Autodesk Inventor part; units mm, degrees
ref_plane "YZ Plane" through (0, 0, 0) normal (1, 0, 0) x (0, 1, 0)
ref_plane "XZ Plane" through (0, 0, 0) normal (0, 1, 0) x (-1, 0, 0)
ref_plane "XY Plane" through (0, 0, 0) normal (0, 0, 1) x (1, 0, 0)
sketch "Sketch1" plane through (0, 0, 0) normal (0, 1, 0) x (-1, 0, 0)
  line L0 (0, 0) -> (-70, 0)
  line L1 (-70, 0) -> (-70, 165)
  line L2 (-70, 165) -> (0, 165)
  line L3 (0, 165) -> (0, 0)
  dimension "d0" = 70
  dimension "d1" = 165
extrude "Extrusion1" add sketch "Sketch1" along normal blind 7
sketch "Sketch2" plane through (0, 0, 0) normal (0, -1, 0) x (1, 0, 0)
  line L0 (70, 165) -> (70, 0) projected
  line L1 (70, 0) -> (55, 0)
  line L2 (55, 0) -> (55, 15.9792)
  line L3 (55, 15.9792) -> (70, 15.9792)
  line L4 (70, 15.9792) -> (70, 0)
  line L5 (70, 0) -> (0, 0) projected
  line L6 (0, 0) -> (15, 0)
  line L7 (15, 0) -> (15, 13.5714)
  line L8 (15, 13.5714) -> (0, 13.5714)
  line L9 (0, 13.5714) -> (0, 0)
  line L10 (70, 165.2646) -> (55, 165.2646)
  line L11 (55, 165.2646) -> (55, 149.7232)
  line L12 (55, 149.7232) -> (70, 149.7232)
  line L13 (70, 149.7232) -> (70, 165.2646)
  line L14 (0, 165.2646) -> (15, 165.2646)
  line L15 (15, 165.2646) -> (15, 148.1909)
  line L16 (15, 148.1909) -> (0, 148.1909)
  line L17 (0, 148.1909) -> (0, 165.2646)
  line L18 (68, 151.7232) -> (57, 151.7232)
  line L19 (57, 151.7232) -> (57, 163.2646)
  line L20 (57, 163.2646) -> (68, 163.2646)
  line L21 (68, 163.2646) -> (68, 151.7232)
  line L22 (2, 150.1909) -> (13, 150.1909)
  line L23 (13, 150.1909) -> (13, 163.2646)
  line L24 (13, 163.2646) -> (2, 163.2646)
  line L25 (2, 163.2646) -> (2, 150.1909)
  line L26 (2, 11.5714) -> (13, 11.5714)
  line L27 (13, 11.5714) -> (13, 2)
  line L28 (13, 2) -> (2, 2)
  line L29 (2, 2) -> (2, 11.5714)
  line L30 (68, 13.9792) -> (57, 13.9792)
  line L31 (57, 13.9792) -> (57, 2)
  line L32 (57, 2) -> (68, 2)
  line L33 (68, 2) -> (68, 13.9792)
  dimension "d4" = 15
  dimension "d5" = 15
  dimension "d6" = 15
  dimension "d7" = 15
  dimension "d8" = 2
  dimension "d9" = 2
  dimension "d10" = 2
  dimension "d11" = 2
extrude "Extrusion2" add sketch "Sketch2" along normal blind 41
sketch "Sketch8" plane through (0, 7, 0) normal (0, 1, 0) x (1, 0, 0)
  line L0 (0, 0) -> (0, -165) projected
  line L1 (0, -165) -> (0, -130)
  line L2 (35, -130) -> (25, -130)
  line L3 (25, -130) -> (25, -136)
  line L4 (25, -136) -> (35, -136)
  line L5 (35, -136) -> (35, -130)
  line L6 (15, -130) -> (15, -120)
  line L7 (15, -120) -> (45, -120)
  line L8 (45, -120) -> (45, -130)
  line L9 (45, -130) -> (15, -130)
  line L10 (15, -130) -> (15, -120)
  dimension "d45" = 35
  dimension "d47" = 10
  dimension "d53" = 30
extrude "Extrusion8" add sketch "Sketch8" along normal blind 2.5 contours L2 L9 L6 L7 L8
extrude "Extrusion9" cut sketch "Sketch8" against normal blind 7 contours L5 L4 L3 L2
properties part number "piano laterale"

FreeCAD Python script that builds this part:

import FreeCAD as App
import Part
import Sketcher
Q = App.Units.Quantity

doc = App.newDocument("Part")
body = doc.addObject("PartDesign::Body", "Body")

# Sketch on XZ plane
sketch1 = body.newObject("Sketcher::SketchObject", "Sketch")
sketch1.AttachmentSupport = (doc.getObject("XZ_Plane"), [""])
sketch1.MapMode = "FlatFace"
sketch1.addGeometry([
    Part.LineSegment(App.Vector(70, 0, 0), App.Vector(0, 0, 0)),
    Part.LineSegment(App.Vector(0, 0, 0), App.Vector(0, 165, 0)),
    Part.LineSegment(App.Vector(0, 165, 0), App.Vector(70, 165, 0)),
    Part.LineSegment(App.Vector(70, 165, 0), App.Vector(70, 0, 0)),
], False)
sketch1.addConstraint([
    Sketcher.Constraint("Coincident", 0, 2, 1, 1),
    Sketcher.Constraint("Coincident", 1, 2, 2, 1),
    Sketcher.Constraint("Coincident", 2, 2, 3, 1),
    Sketcher.Constraint("Coincident", 3, 2, 0, 1),
    Sketcher.Constraint("Horizontal", 0),
    Sketcher.Constraint("Vertical", 1),
    Sketcher.Constraint("Horizontal", 2),
    Sketcher.Constraint("Vertical", 3),
    Sketcher.Constraint("Coincident", 0, 2, -1, 1),
    Sketcher.Constraint("DistanceX", 0, 2, 0, 1, Q("70 mm")),
    Sketcher.Constraint("DistanceY", 1, 1, 1, 2, Q("165 mm")),
])
pad1 = body.newObject("PartDesign::Pad", "Pad")
pad1.Profile = sketch1
pad1.Length = 7
pad1.Reversed = True

# Sketch on XZ plane
sketch2 = body.newObject("Sketcher::SketchObject", "Sketch001")
sketch2.AttachmentSupport = (doc.getObject("XZ_Plane"), [""])
sketch2.MapMode = "FlatFace"
sketch2.addGeometry([
    Part.LineSegment(App.Vector(0, 0, 0), App.Vector(15, 0, 0)),  # 0
    Part.LineSegment(App.Vector(15, 0, 0), App.Vector(15, 13.5714, 0)),  # 1
    Part.LineSegment(App.Vector(15, 13.5714, 0), App.Vector(0, 13.5714, 0)),  # 2
    Part.LineSegment(App.Vector(0, 13.5714, 0), App.Vector(0, 0, 0)),  # 3
    Part.LineSegment(App.Vector(2, 2, 0), App.Vector(2, 11.5714, 0)),  # 4
    Part.LineSegment(App.Vector(2, 11.5714, 0), App.Vector(13, 11.5714, 0)),  # 5
    Part.LineSegment(App.Vector(13, 11.5714, 0), App.Vector(13, 2, 0)),  # 6
    Part.LineSegment(App.Vector(13, 2, 0), App.Vector(2, 2, 0)),  # 7
    Part.LineSegment(App.Vector(70, 0, 0), App.Vector(70, 15.9792, 0)),  # 8
    Part.LineSegment(App.Vector(70, 15.9792, 0), App.Vector(55, 15.9792, 0)),  # 9
    Part.LineSegment(App.Vector(55, 15.9792, 0), App.Vector(55, 0, 0)),  # 10
    Part.LineSegment(App.Vector(55, 0, 0), App.Vector(70, 0, 0)),  # 11
    Part.LineSegment(App.Vector(57, 13.9792, 0), App.Vector(68, 13.9792, 0)),  # 12
    Part.LineSegment(App.Vector(68, 13.9792, 0), App.Vector(68, 2, 0)),  # 13
    Part.LineSegment(App.Vector(68, 2, 0), App.Vector(57, 2, 0)),  # 14
    Part.LineSegment(App.Vector(57, 2, 0), App.Vector(57, 13.9792, 0)),  # 15
    Part.LineSegment(App.Vector(70, 149.7232, 0), App.Vector(70, 165.2646, 0)),  # 16
    Part.LineSegment(App.Vector(70, 165.2646, 0), App.Vector(55, 165.2646, 0)),  # 17
    Part.LineSegment(App.Vector(55, 165.2646, 0), App.Vector(55, 149.7232, 0)),  # 18
    Part.LineSegment(App.Vector(55, 149.7232, 0), App.Vector(70, 149.7232, 0)),  # 19
    Part.LineSegment(App.Vector(68, 163.2646, 0), App.Vector(68, 151.7232, 0)),  # 20
    Part.LineSegment(App.Vector(68, 151.7232, 0), App.Vector(57, 151.7232, 0)),  # 21
    Part.LineSegment(App.Vector(57, 151.7232, 0), App.Vector(57, 163.2646, 0)),  # 22
    Part.LineSegment(App.Vector(57, 163.2646, 0), App.Vector(68, 163.2646, 0)),  # 23
    Part.LineSegment(App.Vector(15, 165.2646, 0), App.Vector(0, 165.2646, 0)),  # 24
    Part.LineSegment(App.Vector(0, 165.2646, 0), App.Vector(0, 148.1909, 0)),  # 25
    Part.LineSegment(App.Vector(0, 148.1909, 0), App.Vector(15, 148.1909, 0)),  # 26
    Part.LineSegment(App.Vector(15, 148.1909, 0), App.Vector(15, 165.2646, 0)),  # 27
    Part.LineSegment(App.Vector(13, 150.1909, 0), App.Vector(2, 150.1909, 0)),  # 28
    Part.LineSegment(App.Vector(2, 150.1909, 0), App.Vector(2, 163.2646, 0)),  # 29
    Part.LineSegment(App.Vector(2, 163.2646, 0), App.Vector(13, 163.2646, 0)),  # 30
    Part.LineSegment(App.Vector(13, 163.2646, 0), App.Vector(13, 150.1909, 0)),  # 31
], False)
sketch2.addConstraint([
    Sketcher.Constraint("Coincident", 0, 2, 1, 1),
    Sketcher.Constraint("Coincident", 1, 2, 2, 1),
    Sketcher.Constraint("Coincident", 2, 2, 3, 1),
    Sketcher.Constraint("Coincident", 3, 2, 0, 1),
    Sketcher.Constraint("Coincident", 4, 2, 5, 1),
    Sketcher.Constraint("Coincident", 5, 2, 6, 1),
    Sketcher.Constraint("Coincident", 6, 2, 7, 1),
    Sketcher.Constraint("Coincident", 7, 2, 4, 1),
    Sketcher.Constraint("Coincident", 8, 2, 9, 1),
    Sketcher.Constraint("Coincident", 9, 2, 10, 1),
    Sketcher.Constraint("Coincident", 10, 2, 11, 1),
    Sketcher.Constraint("Coincident", 11, 2, 8, 1),
    Sketcher.Constraint("Coincident", 12, 2, 13, 1),
    Sketcher.Constraint("Coincident", 13, 2, 14, 1),
    Sketcher.Constraint("Coincident", 14, 2, 15, 1),
    Sketcher.Constraint("Coincident", 15, 2, 12, 1),
    Sketcher.Constraint("Coincident", 16, 2, 17, 1),
    Sketcher.Constraint("Coincident", 17, 2, 18, 1),
    Sketcher.Constraint("Coincident", 18, 2, 19, 1),
    Sketcher.Constraint("Coincident", 19, 2, 16, 1),
    Sketcher.Constraint("Coincident", 20, 2, 21, 1),
    Sketcher.Constraint("Coincident", 21, 2, 22, 1),
    Sketcher.Constraint("Coincident", 22, 2, 23, 1),
    Sketcher.Constraint("Coincident", 23, 2, 20, 1),
    Sketcher.Constraint("Coincident", 24, 2, 25, 1),
    Sketcher.Constraint("Coincident", 25, 2, 26, 1),
    Sketcher.Constraint("Coincident", 26, 2, 27, 1),
    Sketcher.Constraint("Coincident", 27, 2, 24, 1),
    Sketcher.Constraint("Coincident", 28, 2, 29, 1),
    Sketcher.Constraint("Coincident", 29, 2, 30, 1),
    Sketcher.Constraint("Coincident", 30, 2, 31, 1),
    Sketcher.Constraint("Coincident", 31, 2, 28, 1),
    Sketcher.Constraint("Horizontal", 0),
    Sketcher.Constraint("Vertical", 1),
    Sketcher.Constraint("Horizontal", 2),
    Sketcher.Constraint("Vertical", 3),
    Sketcher.Constraint("Vertical", 4),
    Sketcher.Constraint("Horizontal", 5),
    Sketcher.Constraint("Vertical", 6),
    Sketcher.Constraint("Horizontal", 7),
    Sketcher.Constraint("Vertical", 8),
    Sketcher.Constraint("Horizontal", 9),
    Sketcher.Constraint("Vertical", 10),
    Sketcher.Constraint("Horizontal", 11),
    Sketcher.Constraint("Horizontal", 12),
    Sketcher.Constraint("Vertical", 13),
    Sketcher.Constraint("Horizontal", 14),
    Sketcher.Constraint("Vertical", 15),
    Sketcher.Constraint("Vertical", 16),
    Sketcher.Constraint("Horizontal", 17),
    Sketcher.Constraint("Vertical", 18),
    Sketcher.Constraint("Horizontal", 19),
    Sketcher.Constraint("Vertical", 20),
    Sketcher.Constraint("Horizontal", 21),
    Sketcher.Constraint("Vertical", 22),
    Sketcher.Constraint("Horizontal", 23),
    Sketcher.Constraint("Horizontal", 24),
    Sketcher.Constraint("Vertical", 25),
    Sketcher.Constraint("Horizontal", 26),
    Sketcher.Constraint("Vertical", 27),
    Sketcher.Constraint("Horizontal", 28),
    Sketcher.Constraint("Vertical", 29),
    Sketcher.Constraint("Horizontal", 30),
    Sketcher.Constraint("Vertical", 31),
    Sketcher.Constraint("Coincident", 3, 2, -1, 1),
    Sketcher.Constraint("PointOnObject", 10, 2, -1),
    Sketcher.Constraint("PointOnObject", 24, 2, -2),
    Sketcher.Constraint("Horizontal", 7, 2, 13, 2),
    Sketcher.Constraint("Horizontal", 17, 2, 24, 2),
    Sketcher.Constraint("Horizontal", 23, 2, 29, 2),
    Sketcher.Constraint("Vertical", 11, 2, 16, 2),
    Sketcher.Constraint("Vertical", 10, 2, 17, 2),
    Sketcher.Constraint("Vertical", 13, 2, 20, 2),
    Sketcher.Constraint("Vertical", 15, 2, 21, 2),
    Sketcher.Constraint("Vertical", 1, 2, 26, 2),
    Sketcher.Constraint("Vertical", 7, 2, 28, 2),
    Sketcher.Constraint("Vertical", 6, 2, 30, 2),
    Sketcher.Constraint("Equal", 2, 9),
    Sketcher.Constraint("Equal", 7, 12),
    Sketcher.Constraint("DistanceX", 0, 1, 0, 2, Q("15 mm")),
    Sketcher.Constraint("DistanceX", -1, 1, 4, 2, Q("2 mm")),
    Sketcher.Constraint("DistanceY", -1, 1, 6, 2, Q("2 mm")),
    Sketcher.Constraint("DistanceY", 4, 2, 2, 2, Q("2 mm")),
    Sketcher.Constraint("DistanceX", 5, 2, 1, 2, Q("2 mm")),
    Sketcher.Constraint("DistanceX", 12, 2, 8, 2, Q("2 mm")),
    Sketcher.Constraint("DistanceY", 12, 2, 8, 2, Q("2 mm")),
    Sketcher.Constraint("DistanceY", 19, 2, 20, 2, Q("2 mm")),
    Sketcher.Constraint("DistanceY", 22, 2, 17, 2, Q("2 mm")),
    Sketcher.Constraint("DistanceY", 25, 2, 28, 2, Q("2 mm")),
    Sketcher.Constraint("DistanceX", -1, 1, 8, 2, Q("70 mm")),
    Sketcher.Constraint("DistanceY", 1, 1, 1, 2, Q("13.5714 mm")),
    Sketcher.Constraint("DistanceY", 8, 1, 8, 2, Q("15.9792 mm")),
    Sketcher.Constraint("DistanceY", 16, 1, 16, 2, Q("15.5414 mm")),
    Sketcher.Constraint("DistanceY", 25, 2, 25, 1, Q("17.0737 mm")),
    Sketcher.Constraint("DistanceY", -1, 1, 25, 2, Q("148.191 mm")),
])
pad2 = body.newObject("PartDesign::Pad", "Pad001")
pad2.Profile = sketch2
pad2.Length = 41

# Sketch on XZ plane
sketch3 = body.newObject("Sketcher::SketchObject", "Sketch002")
sketch3.AttachmentSupport = (doc.getObject("XZ_Plane"), [""])
sketch3.MapMode = "FlatFace"
sketch3.AttachmentOffset = App.Placement(App.Vector(0, 0, -7), App.Rotation())
sketch3.addGeometry([
    Part.LineSegment(App.Vector(15, 130, 0), App.Vector(45, 130, 0)),
    Part.LineSegment(App.Vector(45, 130, 0), App.Vector(45, 120, 0)),
    Part.LineSegment(App.Vector(45, 120, 0), App.Vector(15, 120, 0)),
    Part.LineSegment(App.Vector(15, 120, 0), App.Vector(15, 130, 0)),
], False)
sketch3.addConstraint([
    Sketcher.Constraint("Coincident", 0, 2, 1, 1),
    Sketcher.Constraint("Coincident", 1, 2, 2, 1),
    Sketcher.Constraint("Coincident", 2, 2, 3, 1),
    Sketcher.Constraint("Coincident", 3, 2, 0, 1),
    Sketcher.Constraint("Horizontal", 0),
    Sketcher.Constraint("Vertical", 1),
    Sketcher.Constraint("Horizontal", 2),
    Sketcher.Constraint("Vertical", 3),
    Sketcher.Constraint("DistanceX", 0, 1, 0, 2, Q("30 mm")),
    Sketcher.Constraint("DistanceY", 1, 2, 1, 1, Q("10 mm")),
    Sketcher.Constraint("DistanceX", -1, 1, 0, 2, Q("45 mm")),
    Sketcher.Constraint("DistanceY", -1, 1, 0, 2, Q("130 mm")),
])
pad3 = body.newObject("PartDesign::Pad", "Pad002")
pad3.Profile = sketch3
pad3.Length = 2.5
pad3.Reversed = True

# Sketch on XZ plane
sketch4 = body.newObject("Sketcher::SketchObject", "Sketch003")
sketch4.AttachmentSupport = (doc.getObject("XZ_Plane"), [""])
sketch4.MapMode = "FlatFace"
sketch4.AttachmentOffset = App.Placement(App.Vector(0, 0, -7), App.Rotation())
sketch4.addGeometry([
    Part.LineSegment(App.Vector(35, 136, 0), App.Vector(35, 130, 0)),
    Part.LineSegment(App.Vector(35, 130, 0), App.Vector(25, 130, 0)),
    Part.LineSegment(App.Vector(25, 130, 0), App.Vector(25, 136, 0)),
    Part.LineSegment(App.Vector(25, 136, 0), App.Vector(35, 136, 0)),
], False)
sketch4.addConstraint([
    Sketcher.Constraint("Coincident", 0, 2, 1, 1),
    Sketcher.Constraint("Coincident", 1, 2, 2, 1),
    Sketcher.Constraint("Coincident", 2, 2, 3, 1),
    Sketcher.Constraint("Coincident", 3, 2, 0, 1),
    Sketcher.Constraint("Vertical", 0),
    Sketcher.Constraint("Horizontal", 1),
    Sketcher.Constraint("Vertical", 2),
    Sketcher.Constraint("Horizontal", 3),
    Sketcher.Constraint("DistanceX", 1, 2, 1, 1, Q("10 mm")),
    Sketcher.Constraint("DistanceX", -1, 1, 0, 2, Q("35 mm")),
    Sketcher.Constraint("DistanceY", 0, 2, 0, 1, Q("6 mm")),
    Sketcher.Constraint("DistanceY", -1, 1, 0, 2, Q("130 mm")),
])
pocket1 = body.newObject("PartDesign::Pocket", "Pocket")
pocket1.Profile = sketch4
pocket1.Length = 7
pocket1.Reversed = True

doc.recompute()
